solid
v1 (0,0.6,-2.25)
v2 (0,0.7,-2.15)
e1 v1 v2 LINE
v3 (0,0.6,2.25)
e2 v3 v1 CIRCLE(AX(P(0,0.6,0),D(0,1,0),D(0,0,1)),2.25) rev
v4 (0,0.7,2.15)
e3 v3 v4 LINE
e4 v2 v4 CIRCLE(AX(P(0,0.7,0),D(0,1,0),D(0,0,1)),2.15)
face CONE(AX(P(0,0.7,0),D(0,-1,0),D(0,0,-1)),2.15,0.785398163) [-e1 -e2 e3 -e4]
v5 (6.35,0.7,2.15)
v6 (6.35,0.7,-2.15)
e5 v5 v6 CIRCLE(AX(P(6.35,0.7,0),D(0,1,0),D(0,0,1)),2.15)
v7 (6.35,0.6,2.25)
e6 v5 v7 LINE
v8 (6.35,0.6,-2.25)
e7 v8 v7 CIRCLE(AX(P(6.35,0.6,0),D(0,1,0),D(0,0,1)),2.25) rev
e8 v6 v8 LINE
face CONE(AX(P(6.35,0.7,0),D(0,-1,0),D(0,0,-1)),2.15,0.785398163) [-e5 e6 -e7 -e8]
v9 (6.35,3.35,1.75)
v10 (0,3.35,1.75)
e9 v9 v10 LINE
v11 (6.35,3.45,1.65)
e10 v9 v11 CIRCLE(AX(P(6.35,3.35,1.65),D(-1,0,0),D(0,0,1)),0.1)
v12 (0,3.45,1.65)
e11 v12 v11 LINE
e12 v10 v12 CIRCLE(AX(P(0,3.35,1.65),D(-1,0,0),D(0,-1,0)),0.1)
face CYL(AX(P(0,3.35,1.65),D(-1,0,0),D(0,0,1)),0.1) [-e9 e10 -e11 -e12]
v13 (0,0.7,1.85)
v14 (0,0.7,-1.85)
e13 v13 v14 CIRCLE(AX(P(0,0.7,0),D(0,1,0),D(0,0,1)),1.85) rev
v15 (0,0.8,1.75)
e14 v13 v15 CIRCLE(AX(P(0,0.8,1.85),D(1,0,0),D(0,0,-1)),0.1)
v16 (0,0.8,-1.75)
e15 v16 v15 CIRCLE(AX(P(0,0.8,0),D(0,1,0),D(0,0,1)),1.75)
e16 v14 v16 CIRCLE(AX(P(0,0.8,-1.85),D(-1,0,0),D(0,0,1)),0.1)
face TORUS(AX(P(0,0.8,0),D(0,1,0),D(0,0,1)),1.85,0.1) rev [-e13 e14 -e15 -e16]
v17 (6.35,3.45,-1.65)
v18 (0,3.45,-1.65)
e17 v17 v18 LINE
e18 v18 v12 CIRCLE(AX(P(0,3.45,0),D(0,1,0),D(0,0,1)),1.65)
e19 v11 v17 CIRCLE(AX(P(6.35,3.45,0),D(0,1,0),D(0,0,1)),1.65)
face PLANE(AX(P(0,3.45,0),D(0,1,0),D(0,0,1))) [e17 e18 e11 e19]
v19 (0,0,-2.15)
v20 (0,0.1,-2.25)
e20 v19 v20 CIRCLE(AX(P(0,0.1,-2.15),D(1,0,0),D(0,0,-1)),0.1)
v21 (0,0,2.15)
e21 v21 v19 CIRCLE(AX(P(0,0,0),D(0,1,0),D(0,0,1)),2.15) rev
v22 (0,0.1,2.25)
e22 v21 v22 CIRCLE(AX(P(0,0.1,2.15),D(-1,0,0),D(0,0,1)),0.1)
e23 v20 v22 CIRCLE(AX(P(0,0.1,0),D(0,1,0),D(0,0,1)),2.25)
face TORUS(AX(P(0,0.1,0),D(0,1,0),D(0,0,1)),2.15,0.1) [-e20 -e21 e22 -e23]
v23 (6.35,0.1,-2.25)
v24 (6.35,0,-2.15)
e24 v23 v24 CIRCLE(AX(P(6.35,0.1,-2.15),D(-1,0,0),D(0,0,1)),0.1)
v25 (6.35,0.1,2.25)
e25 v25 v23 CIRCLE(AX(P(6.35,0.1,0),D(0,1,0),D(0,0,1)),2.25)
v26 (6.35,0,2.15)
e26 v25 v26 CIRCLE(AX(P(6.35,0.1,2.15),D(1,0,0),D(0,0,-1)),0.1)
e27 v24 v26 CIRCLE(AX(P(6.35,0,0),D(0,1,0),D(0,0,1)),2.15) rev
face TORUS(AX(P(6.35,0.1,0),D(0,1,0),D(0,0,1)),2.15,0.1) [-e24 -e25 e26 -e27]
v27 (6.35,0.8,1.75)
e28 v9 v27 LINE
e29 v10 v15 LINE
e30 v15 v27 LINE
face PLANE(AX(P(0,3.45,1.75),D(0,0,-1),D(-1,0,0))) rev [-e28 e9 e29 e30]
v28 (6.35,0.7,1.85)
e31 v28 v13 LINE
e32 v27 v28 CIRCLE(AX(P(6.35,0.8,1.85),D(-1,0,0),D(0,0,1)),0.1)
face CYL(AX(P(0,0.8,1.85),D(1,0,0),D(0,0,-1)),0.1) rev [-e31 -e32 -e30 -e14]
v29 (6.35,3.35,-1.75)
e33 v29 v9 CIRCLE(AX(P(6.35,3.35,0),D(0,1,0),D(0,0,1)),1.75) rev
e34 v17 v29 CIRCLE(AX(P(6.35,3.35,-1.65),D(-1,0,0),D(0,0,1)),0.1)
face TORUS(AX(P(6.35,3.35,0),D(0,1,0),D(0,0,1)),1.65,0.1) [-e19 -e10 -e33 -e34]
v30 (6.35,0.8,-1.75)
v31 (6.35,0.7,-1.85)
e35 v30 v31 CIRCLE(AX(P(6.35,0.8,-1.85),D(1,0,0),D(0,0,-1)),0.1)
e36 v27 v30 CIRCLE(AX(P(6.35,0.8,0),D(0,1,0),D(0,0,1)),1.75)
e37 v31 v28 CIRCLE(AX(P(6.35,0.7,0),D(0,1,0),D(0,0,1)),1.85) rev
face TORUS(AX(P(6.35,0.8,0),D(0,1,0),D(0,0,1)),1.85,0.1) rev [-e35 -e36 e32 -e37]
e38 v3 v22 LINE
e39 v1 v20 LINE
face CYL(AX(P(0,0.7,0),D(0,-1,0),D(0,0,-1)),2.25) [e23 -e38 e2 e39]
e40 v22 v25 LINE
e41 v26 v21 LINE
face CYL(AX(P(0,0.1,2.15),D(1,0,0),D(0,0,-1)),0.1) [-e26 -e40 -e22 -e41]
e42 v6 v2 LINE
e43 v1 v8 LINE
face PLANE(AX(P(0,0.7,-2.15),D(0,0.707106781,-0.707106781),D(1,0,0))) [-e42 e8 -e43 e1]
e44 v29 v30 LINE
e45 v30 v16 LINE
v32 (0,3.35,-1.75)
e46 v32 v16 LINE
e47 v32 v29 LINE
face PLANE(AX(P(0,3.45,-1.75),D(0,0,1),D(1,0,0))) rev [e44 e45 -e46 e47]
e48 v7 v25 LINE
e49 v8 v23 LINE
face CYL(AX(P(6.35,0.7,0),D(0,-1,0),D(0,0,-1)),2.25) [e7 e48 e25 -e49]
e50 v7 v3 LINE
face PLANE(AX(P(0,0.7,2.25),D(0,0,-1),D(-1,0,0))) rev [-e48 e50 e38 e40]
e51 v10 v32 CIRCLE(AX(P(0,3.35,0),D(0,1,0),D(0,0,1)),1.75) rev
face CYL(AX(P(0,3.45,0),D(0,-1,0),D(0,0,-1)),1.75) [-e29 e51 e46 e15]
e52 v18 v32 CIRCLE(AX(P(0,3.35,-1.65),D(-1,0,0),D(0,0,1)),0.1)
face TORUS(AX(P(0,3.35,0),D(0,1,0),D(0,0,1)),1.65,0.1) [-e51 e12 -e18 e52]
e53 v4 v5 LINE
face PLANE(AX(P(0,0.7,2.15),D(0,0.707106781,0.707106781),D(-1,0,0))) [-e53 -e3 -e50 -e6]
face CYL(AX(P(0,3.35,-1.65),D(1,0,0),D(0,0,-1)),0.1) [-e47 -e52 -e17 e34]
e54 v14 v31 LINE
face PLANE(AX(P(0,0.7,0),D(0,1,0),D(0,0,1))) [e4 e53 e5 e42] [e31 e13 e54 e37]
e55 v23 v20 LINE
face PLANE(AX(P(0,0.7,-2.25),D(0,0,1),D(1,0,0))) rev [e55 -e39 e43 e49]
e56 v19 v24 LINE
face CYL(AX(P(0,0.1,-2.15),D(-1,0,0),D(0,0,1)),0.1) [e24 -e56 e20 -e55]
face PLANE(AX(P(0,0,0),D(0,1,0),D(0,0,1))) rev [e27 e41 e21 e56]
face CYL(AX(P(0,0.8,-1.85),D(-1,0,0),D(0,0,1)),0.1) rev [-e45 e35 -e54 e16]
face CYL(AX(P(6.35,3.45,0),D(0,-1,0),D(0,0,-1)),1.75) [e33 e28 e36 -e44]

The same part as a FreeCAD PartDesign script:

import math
import FreeCAD as App
import Part
import Sketcher

V = App.Vector


def edges_at(feature, points):
    """Names of the edges that pass closest to the given points."""
    edges = feature.Shape.Edges
    near = lambda p: min(range(len(edges)), key=lambda i: edges[i].distToShape(Part.Vertex(*p))[0])
    return sorted({f"Edge{near(p) + 1}" for p in points})

doc = App.newDocument("Part")
body = doc.addObject("PartDesign::Body", "Body")

# Sketch on XZ plane
sketch1 = doc.addObject("Sketcher::SketchObject", "Sketch")
body.addObject(sketch1)
sketch1.AttachmentSupport = (doc.XZ_Plane, [""])
sketch1.MapMode = "FlatFace"
sketch1.addGeometry(Part.LineSegment(V(6.3, -2.2, 0), V(0, -2.2, 0)), False)
sketch1.addGeometry(Part.ArcOfCircle(Part.Circle(V(0, 0, 0), V(0, 0, 1), 2.2), math.radians(90), math.radians(270)), False)
sketch1.addGeometry(Part.LineSegment(V(0, 2.2, 0), V(6.3, 2.2, 0)), False)
sketch1.addGeometry(Part.ArcOfCircle(Part.Circle(V(6.3, 0, 0), V(0, 0, 1), 2.2), math.radians(-90), math.radians(90)), False)
sketch1.addConstraint(Sketcher.Constraint("Tangent", 0, 2, 1, 2))
sketch1.addConstraint(Sketcher.Constraint("Tangent", 1, 1, 2, 1))
sketch1.addConstraint(Sketcher.Constraint("Tangent", 2, 2, 3, 2))
sketch1.addConstraint(Sketcher.Constraint("Tangent", 3, 1, 0, 1))
sketch1.addConstraint(Sketcher.Constraint("Horizontal", 0))
sketch1.addConstraint(Sketcher.Constraint("Horizontal", 2))
sketch1.addConstraint(Sketcher.Constraint("Coincident", 1, 3, -1, 1))
sketch1.addConstraint(Sketcher.Constraint("Radius", 1, 2.25))
sketch1.addConstraint(Sketcher.Constraint("DistanceX", 0, 2, 0, 1, 6.35))
pad1 = doc.addObject("PartDesign::Pad", "Pad")
body.addObject(pad1)
pad1.Profile = sketch1
pad1.Length = 0.7
pad1.Reversed = True

# Sketch on XZ plane
sketch2 = doc.addObject("Sketcher::SketchObject", "Sketch001")
body.addObject(sketch2)
sketch2.AttachmentSupport = (doc.XZ_Plane, [""])
sketch2.MapMode = "FlatFace"
sketch2.AttachmentOffset = App.Placement(V(0, 0, -0.7), App.Rotation())
sketch2.addGeometry(Part.LineSegment(V(6.3, -1.8, 0), V(0, -1.8, 0)), False)
sketch2.addGeometry(Part.ArcOfCircle(Part.Circle(V(0, 0, 0), V(0, 0, 1), 1.8), math.radians(90), math.radians(270)), False)
sketch2.addGeometry(Part.LineSegment(V(0, 1.8, 0), V(6.3, 1.8, 0)), False)
sketch2.addGeometry(Part.ArcOfCircle(Part.Circle(V(6.3, 0, 0), V(0, 0, 1), 1.8), math.radians(-90), math.radians(90)), False)
sketch2.addConstraint(Sketcher.Constraint("Tangent", 0, 2, 1, 2))
sketch2.addConstraint(Sketcher.Constraint("Tangent", 1, 1, 2, 1))
sketch2.addConstraint(Sketcher.Constraint("Tangent", 2, 2, 3, 2))
sketch2.addConstraint(Sketcher.Constraint("Tangent", 3, 1, 0, 1))
sketch2.addConstraint(Sketcher.Constraint("Horizontal", 0))
sketch2.addConstraint(Sketcher.Constraint("Horizontal", 2))
sketch2.addConstraint(Sketcher.Constraint("Coincident", 1, 3, -1, 1))
sketch2.addConstraint(Sketcher.Constraint("Radius", 1, 1.75))
sketch2.addConstraint(Sketcher.Constraint("DistanceX", 0, 2, 0, 1, 6.35))
pad2 = doc.addObject("PartDesign::Pad", "Pad001")
body.addObject(pad2)
pad2.Profile = sketch2
pad2.Length = 2.75
pad2.Reversed = True
doc.recompute()

fillet = doc.addObject("PartDesign::Fillet", "Fillet")
body.addObject(fillet)
fillet.Base = (pad2, edges_at(pad2, [
    (-1.75, 0.7, 0),
    (3.175, 0.7, 1.75),
    (8.1, 0.7, 0),
    (3.175, 0.7, -1.75),
]))
fillet.Radius = 0.1
doc.recompute()

fillet2 = doc.addObject("PartDesign::Fillet", "Fillet001")
body.addObject(fillet2)
fillet2.Base = (fillet, edges_at(fillet, [
    (-1.75, 3.45, 0),
    (3.175, 3.45, 1.75),
    (8.1, 3.45, 0),
    (3.175, 3.45, -1.75),
]))
fillet2.Radius = 0.1
doc.recompute()

fillet3 = doc.addObject("PartDesign::Fillet", "Fillet002")
body.addObject(fillet3)
fillet3.Base = (fillet2, edges_at(fillet2, [
    (3.175, 0, -2.25),
    (8.6, 0, 0),
    (3.175, 0, 2.25),
    (-2.25, 0, 0),
]))
fillet3.Radius = 0.1
doc.recompute()

chamfer = doc.addObject("PartDesign::Chamfer", "Chamfer")
body.addObject(chamfer)
chamfer.Base = (fillet3, edges_at(fillet3, [
    (8.6, 0.7, 0),
    (3.175, 0.7, -2.25),
    (-2.25, 0.7, 0),
    (3.175, 0.7, 2.25),
]))
chamfer.Size = 0.1

doc.recompute()
